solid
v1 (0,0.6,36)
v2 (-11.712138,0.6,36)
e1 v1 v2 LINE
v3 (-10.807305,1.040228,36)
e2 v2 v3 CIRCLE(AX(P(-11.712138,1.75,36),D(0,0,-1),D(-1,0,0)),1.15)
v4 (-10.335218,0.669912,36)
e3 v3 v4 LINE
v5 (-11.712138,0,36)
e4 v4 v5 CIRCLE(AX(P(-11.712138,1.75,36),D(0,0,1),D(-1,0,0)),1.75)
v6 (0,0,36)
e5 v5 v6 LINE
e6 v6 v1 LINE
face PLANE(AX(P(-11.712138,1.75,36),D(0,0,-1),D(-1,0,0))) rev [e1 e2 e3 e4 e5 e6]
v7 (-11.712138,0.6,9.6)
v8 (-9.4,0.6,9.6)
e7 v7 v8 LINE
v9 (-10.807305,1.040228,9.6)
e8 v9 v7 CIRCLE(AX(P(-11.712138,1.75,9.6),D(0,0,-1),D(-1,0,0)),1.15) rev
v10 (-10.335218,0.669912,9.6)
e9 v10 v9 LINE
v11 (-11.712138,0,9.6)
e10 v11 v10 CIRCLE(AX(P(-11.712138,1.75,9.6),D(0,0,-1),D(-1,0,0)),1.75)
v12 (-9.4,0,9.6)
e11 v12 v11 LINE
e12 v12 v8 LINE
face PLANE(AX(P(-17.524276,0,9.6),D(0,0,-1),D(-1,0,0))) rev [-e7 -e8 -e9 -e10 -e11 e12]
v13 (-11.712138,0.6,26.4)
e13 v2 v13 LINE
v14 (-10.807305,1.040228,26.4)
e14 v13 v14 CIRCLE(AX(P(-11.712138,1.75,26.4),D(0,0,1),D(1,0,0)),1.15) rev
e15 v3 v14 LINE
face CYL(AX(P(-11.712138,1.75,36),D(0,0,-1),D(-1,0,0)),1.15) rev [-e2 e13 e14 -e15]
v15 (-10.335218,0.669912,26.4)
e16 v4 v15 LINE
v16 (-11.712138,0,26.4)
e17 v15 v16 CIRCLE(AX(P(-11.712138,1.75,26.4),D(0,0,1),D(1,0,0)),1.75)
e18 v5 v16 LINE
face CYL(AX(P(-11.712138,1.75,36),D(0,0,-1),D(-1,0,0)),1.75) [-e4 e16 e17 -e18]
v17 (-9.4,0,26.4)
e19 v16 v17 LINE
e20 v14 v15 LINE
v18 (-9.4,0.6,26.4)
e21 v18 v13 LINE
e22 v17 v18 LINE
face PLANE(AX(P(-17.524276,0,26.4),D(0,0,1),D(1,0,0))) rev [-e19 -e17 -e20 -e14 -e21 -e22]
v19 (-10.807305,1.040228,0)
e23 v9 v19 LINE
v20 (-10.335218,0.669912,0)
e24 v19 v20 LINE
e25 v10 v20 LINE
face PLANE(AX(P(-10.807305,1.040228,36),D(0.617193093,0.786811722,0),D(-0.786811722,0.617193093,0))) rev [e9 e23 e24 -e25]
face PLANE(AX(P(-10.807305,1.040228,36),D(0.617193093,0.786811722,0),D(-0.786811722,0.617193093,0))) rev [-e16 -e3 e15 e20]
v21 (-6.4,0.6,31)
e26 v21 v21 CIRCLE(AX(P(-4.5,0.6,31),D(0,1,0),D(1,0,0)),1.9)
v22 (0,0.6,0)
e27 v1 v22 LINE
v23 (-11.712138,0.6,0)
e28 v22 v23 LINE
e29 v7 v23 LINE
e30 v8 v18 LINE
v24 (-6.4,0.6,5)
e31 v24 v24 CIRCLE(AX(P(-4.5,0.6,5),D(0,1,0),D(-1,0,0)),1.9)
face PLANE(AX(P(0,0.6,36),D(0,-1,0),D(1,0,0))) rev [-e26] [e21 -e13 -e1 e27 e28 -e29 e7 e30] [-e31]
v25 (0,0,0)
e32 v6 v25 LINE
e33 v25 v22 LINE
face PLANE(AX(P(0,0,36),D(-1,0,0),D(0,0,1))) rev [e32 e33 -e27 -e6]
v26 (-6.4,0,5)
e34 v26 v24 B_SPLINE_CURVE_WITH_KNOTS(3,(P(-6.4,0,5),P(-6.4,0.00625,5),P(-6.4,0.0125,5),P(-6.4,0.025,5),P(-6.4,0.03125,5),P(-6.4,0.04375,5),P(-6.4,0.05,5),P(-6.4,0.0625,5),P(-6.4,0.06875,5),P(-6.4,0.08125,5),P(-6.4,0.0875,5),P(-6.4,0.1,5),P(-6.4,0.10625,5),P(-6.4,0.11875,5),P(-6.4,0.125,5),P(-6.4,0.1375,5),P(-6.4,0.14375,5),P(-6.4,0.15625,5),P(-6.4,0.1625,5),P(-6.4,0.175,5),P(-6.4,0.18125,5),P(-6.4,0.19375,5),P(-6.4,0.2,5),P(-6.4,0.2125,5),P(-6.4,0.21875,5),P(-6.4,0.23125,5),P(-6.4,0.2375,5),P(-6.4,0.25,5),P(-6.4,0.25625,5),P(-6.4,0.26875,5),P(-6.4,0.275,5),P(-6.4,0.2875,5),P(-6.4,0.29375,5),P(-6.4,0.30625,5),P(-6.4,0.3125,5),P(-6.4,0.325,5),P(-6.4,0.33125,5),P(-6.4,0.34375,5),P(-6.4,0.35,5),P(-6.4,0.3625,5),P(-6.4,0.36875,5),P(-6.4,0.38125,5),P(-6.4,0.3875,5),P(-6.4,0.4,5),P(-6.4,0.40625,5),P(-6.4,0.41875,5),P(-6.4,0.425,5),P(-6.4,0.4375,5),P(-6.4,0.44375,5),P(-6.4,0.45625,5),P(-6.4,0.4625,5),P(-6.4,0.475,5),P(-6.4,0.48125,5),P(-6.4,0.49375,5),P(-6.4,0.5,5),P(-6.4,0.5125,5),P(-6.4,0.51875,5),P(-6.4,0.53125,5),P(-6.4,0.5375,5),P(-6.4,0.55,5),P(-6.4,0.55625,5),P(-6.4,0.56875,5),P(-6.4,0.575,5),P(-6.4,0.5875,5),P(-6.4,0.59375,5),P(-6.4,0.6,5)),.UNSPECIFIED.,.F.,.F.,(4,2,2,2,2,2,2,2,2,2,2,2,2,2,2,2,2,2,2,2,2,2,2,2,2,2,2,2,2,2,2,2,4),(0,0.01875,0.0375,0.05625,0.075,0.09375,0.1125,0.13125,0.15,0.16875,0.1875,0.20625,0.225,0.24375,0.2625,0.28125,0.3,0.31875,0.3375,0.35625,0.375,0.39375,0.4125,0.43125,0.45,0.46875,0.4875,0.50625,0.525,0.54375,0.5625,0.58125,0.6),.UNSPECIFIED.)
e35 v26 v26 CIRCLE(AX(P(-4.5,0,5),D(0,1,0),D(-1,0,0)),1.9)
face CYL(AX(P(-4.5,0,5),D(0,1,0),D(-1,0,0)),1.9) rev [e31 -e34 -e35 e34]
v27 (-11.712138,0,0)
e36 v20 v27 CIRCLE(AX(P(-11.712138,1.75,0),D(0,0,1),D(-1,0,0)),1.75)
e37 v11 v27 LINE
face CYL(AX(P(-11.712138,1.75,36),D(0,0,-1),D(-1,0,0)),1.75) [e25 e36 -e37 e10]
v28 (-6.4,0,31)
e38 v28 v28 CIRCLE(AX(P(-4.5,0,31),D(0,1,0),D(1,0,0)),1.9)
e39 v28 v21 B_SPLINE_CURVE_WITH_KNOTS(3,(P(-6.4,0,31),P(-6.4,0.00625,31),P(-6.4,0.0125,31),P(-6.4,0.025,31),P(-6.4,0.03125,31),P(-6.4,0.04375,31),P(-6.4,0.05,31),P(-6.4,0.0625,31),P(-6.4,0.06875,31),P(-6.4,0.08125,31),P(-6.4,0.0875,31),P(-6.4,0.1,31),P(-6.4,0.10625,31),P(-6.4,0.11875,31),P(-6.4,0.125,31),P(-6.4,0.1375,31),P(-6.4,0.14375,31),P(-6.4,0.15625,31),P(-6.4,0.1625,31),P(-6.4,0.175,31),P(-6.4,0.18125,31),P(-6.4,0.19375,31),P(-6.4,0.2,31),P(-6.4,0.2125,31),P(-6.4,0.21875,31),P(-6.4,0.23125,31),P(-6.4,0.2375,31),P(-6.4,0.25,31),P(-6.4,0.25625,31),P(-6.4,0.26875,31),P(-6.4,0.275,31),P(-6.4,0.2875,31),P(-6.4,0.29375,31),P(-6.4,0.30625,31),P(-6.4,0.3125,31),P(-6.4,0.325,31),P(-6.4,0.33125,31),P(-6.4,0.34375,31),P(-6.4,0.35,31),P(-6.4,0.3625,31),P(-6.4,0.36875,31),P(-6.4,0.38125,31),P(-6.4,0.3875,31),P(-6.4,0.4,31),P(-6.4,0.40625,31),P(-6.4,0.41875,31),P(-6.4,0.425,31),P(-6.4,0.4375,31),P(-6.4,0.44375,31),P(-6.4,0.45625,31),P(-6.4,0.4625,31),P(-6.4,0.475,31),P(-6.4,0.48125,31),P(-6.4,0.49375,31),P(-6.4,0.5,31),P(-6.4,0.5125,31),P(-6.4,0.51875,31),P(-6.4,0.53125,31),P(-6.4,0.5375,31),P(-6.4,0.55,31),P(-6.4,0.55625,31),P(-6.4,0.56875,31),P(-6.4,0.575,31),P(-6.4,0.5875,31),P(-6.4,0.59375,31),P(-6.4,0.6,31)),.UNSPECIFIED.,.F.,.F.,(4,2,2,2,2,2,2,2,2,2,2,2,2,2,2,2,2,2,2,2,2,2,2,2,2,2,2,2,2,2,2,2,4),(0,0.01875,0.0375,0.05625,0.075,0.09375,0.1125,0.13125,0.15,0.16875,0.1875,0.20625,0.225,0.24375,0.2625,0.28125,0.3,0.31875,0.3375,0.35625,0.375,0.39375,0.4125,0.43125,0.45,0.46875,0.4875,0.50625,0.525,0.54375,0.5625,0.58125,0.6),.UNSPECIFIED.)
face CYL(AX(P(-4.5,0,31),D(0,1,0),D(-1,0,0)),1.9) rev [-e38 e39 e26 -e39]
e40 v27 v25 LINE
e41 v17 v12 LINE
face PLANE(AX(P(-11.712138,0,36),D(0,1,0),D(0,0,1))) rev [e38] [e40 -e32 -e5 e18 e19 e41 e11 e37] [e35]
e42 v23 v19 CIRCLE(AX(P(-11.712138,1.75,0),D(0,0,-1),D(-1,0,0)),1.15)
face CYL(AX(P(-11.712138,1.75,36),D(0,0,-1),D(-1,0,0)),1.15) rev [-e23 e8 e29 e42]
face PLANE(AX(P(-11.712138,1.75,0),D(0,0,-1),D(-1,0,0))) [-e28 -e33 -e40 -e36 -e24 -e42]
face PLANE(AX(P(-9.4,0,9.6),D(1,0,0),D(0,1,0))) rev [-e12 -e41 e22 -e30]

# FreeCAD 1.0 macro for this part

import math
import FreeCAD as App
import Part
import Sketcher

V = App.Vector


def add_polygon(sketch, points):
    """Adds a closed chain of lines whose ends are joined by coincident constraints."""
    first, n = sketch.GeometryCount, len(points)
    for a, b in zip(points, points[1:] + points[:1]):
        sketch.addGeometry(Part.LineSegment(App.Vector(*a, 0), App.Vector(*b, 0)), False)
    for i in range(n):
        sketch.addConstraint(Sketcher.Constraint("Coincident", first + i, 2, first + (i + 1) % n, 1))

doc = App.newDocument("Part")
body = doc.addObject("PartDesign::Body", "Body")

# Sketch on XY plane
sketch1 = body.newObject("Sketcher::SketchObject", "Sketch")
sketch1.AttachmentSupport = (doc.getObject("XY_Plane"), [""])
sketch1.MapMode = "FlatFace"
sketch1.addGeometry([
    Part.LineSegment(V(0, 0, 0), V(0, 0.6, 0)),  # 0
    Part.LineSegment(V(0, 0.6, 0), V(-11.7, 0.6, 0)),  # 1
    Part.ArcOfCircle(Part.Circle(V(-11.7, 1.8, 0), V(0, 0, 1), 1.1), math.radians(-38), math.radians(270)),  # 2
    Part.LineSegment(V(-10.8, 1, 0), V(-10.3, 0.7, 0)),  # 3
    Part.ArcOfCircle(Part.Circle(V(-11.7, 1.8, 0), V(0, 0, 1), 1.8), math.radians(-38), math.radians(270)),  # 4
    Part.LineSegment(V(-11.7, 0, 0), V(0, 0, 0)),  # 5
], False)
sketch1.addConstraint([
    Sketcher.Constraint("Coincident", 0, 2, 1, 1),
    Sketcher.Constraint("Tangent", 1, 2, 2, 2),
    Sketcher.Constraint("Coincident", 2, 1, 3, 1),
    Sketcher.Constraint("Coincident", 3, 2, 4, 1),
    Sketcher.Constraint("Tangent", 4, 2, 5, 1),
    Sketcher.Constraint("Coincident", 5, 2, 0, 1),
    Sketcher.Constraint("Vertical", 0),
    Sketcher.Constraint("Horizontal", 1),
    Sketcher.Constraint("Horizontal", 5),
    Sketcher.Constraint("Coincident", 5, 2, -1, 1),
    Sketcher.Constraint("Coincident", 4, 3, 2, 3),
    Sketcher.Constraint("Radius", 2, 1.15),
    Sketcher.Constraint("Radius", 4, 1.75),
    Sketcher.Constraint("DistanceX", 1, 2, 1, 1, 11.712138),
    Sketcher.Constraint("DistanceX", 1, 2, 3, 2, 1.376921),
    Sketcher.Constraint("DistanceX", 2, 1, -1, 1, 10.807305),
])
pad1 = body.newObject("PartDesign::Pad", "Pad")
pad1.Profile = sketch1
pad1.Length = 36

# Sketch on XZ plane
sketch2 = body.newObject("Sketcher::SketchObject", "Sketch001")
sketch2.AttachmentSupport = (doc.getObject("XZ_Plane"), [""])
sketch2.MapMode = "FlatFace"
sketch2.AttachmentOffset = App.Placement(V(0, 0, -0.6), App.Rotation())
sketch2.addGeometry([
    Part.Circle(V(-4.5, 5, 0), V(0, 0, 1), 1.9),
    Part.Circle(V(-4.5, 31, 0), V(0, 0, 1), 1.9),
], False)
sketch2.addConstraint([
    Sketcher.Constraint("Equal", 0, 1),
    Sketcher.Constraint("Vertical", 0, 3, 1, 3),
    Sketcher.Constraint("Diameter", 0, 3.8),
    Sketcher.Constraint("DistanceY", -1, 1, 0, 3, 5.0),
    Sketcher.Constraint("DistanceY", -1, 1, 1, 3, 31.0),
    Sketcher.Constraint("DistanceX", 0, 3, -1, 1, 4.5),
])
pocket1 = body.newObject("PartDesign::Pocket", "Pocket")
pocket1.Profile = sketch2
pocket1.Type = "ThroughAll"
pocket1.Reversed = True

# Sketch on XZ plane
sketch3 = body.newObject("Sketcher::SketchObject", "Sketch002")
sketch3.AttachmentSupport = (doc.getObject("XZ_Plane"), [""])
sketch3.MapMode = "FlatFace"
sketch3.AttachmentOffset = App.Placement(V(0, 0, -0.6), App.Rotation())
add_polygon(sketch3, [(-18, 10), (-18, 26), (-9, 26), (-9, 10)])  # lines 0-3
sketch3.addConstraint([
    Sketcher.Constraint("Vertical", 0),
    Sketcher.Constraint("Horizontal", 1),
    Sketcher.Constraint("Vertical", 2),
    Sketcher.Constraint("Horizontal", 3),
    Sketcher.Constraint("DistanceY", 0, 1, 0, 2, 16.8),
    Sketcher.Constraint("DistanceY", -1, 1, 0, 2, 26.4),
    Sketcher.Constraint("DistanceX", 1, 2, -1, 1, 9.4),
    Sketcher.Constraint("DistanceX", 1, 1, 1, 2, 8.124276),
])
pocket2 = body.newObject("PartDesign::Pocket", "Pocket001")
pocket2.Profile = sketch3
pocket2.Type = "ThroughAll"
pocket2.Midplane = True

doc.recompute()
